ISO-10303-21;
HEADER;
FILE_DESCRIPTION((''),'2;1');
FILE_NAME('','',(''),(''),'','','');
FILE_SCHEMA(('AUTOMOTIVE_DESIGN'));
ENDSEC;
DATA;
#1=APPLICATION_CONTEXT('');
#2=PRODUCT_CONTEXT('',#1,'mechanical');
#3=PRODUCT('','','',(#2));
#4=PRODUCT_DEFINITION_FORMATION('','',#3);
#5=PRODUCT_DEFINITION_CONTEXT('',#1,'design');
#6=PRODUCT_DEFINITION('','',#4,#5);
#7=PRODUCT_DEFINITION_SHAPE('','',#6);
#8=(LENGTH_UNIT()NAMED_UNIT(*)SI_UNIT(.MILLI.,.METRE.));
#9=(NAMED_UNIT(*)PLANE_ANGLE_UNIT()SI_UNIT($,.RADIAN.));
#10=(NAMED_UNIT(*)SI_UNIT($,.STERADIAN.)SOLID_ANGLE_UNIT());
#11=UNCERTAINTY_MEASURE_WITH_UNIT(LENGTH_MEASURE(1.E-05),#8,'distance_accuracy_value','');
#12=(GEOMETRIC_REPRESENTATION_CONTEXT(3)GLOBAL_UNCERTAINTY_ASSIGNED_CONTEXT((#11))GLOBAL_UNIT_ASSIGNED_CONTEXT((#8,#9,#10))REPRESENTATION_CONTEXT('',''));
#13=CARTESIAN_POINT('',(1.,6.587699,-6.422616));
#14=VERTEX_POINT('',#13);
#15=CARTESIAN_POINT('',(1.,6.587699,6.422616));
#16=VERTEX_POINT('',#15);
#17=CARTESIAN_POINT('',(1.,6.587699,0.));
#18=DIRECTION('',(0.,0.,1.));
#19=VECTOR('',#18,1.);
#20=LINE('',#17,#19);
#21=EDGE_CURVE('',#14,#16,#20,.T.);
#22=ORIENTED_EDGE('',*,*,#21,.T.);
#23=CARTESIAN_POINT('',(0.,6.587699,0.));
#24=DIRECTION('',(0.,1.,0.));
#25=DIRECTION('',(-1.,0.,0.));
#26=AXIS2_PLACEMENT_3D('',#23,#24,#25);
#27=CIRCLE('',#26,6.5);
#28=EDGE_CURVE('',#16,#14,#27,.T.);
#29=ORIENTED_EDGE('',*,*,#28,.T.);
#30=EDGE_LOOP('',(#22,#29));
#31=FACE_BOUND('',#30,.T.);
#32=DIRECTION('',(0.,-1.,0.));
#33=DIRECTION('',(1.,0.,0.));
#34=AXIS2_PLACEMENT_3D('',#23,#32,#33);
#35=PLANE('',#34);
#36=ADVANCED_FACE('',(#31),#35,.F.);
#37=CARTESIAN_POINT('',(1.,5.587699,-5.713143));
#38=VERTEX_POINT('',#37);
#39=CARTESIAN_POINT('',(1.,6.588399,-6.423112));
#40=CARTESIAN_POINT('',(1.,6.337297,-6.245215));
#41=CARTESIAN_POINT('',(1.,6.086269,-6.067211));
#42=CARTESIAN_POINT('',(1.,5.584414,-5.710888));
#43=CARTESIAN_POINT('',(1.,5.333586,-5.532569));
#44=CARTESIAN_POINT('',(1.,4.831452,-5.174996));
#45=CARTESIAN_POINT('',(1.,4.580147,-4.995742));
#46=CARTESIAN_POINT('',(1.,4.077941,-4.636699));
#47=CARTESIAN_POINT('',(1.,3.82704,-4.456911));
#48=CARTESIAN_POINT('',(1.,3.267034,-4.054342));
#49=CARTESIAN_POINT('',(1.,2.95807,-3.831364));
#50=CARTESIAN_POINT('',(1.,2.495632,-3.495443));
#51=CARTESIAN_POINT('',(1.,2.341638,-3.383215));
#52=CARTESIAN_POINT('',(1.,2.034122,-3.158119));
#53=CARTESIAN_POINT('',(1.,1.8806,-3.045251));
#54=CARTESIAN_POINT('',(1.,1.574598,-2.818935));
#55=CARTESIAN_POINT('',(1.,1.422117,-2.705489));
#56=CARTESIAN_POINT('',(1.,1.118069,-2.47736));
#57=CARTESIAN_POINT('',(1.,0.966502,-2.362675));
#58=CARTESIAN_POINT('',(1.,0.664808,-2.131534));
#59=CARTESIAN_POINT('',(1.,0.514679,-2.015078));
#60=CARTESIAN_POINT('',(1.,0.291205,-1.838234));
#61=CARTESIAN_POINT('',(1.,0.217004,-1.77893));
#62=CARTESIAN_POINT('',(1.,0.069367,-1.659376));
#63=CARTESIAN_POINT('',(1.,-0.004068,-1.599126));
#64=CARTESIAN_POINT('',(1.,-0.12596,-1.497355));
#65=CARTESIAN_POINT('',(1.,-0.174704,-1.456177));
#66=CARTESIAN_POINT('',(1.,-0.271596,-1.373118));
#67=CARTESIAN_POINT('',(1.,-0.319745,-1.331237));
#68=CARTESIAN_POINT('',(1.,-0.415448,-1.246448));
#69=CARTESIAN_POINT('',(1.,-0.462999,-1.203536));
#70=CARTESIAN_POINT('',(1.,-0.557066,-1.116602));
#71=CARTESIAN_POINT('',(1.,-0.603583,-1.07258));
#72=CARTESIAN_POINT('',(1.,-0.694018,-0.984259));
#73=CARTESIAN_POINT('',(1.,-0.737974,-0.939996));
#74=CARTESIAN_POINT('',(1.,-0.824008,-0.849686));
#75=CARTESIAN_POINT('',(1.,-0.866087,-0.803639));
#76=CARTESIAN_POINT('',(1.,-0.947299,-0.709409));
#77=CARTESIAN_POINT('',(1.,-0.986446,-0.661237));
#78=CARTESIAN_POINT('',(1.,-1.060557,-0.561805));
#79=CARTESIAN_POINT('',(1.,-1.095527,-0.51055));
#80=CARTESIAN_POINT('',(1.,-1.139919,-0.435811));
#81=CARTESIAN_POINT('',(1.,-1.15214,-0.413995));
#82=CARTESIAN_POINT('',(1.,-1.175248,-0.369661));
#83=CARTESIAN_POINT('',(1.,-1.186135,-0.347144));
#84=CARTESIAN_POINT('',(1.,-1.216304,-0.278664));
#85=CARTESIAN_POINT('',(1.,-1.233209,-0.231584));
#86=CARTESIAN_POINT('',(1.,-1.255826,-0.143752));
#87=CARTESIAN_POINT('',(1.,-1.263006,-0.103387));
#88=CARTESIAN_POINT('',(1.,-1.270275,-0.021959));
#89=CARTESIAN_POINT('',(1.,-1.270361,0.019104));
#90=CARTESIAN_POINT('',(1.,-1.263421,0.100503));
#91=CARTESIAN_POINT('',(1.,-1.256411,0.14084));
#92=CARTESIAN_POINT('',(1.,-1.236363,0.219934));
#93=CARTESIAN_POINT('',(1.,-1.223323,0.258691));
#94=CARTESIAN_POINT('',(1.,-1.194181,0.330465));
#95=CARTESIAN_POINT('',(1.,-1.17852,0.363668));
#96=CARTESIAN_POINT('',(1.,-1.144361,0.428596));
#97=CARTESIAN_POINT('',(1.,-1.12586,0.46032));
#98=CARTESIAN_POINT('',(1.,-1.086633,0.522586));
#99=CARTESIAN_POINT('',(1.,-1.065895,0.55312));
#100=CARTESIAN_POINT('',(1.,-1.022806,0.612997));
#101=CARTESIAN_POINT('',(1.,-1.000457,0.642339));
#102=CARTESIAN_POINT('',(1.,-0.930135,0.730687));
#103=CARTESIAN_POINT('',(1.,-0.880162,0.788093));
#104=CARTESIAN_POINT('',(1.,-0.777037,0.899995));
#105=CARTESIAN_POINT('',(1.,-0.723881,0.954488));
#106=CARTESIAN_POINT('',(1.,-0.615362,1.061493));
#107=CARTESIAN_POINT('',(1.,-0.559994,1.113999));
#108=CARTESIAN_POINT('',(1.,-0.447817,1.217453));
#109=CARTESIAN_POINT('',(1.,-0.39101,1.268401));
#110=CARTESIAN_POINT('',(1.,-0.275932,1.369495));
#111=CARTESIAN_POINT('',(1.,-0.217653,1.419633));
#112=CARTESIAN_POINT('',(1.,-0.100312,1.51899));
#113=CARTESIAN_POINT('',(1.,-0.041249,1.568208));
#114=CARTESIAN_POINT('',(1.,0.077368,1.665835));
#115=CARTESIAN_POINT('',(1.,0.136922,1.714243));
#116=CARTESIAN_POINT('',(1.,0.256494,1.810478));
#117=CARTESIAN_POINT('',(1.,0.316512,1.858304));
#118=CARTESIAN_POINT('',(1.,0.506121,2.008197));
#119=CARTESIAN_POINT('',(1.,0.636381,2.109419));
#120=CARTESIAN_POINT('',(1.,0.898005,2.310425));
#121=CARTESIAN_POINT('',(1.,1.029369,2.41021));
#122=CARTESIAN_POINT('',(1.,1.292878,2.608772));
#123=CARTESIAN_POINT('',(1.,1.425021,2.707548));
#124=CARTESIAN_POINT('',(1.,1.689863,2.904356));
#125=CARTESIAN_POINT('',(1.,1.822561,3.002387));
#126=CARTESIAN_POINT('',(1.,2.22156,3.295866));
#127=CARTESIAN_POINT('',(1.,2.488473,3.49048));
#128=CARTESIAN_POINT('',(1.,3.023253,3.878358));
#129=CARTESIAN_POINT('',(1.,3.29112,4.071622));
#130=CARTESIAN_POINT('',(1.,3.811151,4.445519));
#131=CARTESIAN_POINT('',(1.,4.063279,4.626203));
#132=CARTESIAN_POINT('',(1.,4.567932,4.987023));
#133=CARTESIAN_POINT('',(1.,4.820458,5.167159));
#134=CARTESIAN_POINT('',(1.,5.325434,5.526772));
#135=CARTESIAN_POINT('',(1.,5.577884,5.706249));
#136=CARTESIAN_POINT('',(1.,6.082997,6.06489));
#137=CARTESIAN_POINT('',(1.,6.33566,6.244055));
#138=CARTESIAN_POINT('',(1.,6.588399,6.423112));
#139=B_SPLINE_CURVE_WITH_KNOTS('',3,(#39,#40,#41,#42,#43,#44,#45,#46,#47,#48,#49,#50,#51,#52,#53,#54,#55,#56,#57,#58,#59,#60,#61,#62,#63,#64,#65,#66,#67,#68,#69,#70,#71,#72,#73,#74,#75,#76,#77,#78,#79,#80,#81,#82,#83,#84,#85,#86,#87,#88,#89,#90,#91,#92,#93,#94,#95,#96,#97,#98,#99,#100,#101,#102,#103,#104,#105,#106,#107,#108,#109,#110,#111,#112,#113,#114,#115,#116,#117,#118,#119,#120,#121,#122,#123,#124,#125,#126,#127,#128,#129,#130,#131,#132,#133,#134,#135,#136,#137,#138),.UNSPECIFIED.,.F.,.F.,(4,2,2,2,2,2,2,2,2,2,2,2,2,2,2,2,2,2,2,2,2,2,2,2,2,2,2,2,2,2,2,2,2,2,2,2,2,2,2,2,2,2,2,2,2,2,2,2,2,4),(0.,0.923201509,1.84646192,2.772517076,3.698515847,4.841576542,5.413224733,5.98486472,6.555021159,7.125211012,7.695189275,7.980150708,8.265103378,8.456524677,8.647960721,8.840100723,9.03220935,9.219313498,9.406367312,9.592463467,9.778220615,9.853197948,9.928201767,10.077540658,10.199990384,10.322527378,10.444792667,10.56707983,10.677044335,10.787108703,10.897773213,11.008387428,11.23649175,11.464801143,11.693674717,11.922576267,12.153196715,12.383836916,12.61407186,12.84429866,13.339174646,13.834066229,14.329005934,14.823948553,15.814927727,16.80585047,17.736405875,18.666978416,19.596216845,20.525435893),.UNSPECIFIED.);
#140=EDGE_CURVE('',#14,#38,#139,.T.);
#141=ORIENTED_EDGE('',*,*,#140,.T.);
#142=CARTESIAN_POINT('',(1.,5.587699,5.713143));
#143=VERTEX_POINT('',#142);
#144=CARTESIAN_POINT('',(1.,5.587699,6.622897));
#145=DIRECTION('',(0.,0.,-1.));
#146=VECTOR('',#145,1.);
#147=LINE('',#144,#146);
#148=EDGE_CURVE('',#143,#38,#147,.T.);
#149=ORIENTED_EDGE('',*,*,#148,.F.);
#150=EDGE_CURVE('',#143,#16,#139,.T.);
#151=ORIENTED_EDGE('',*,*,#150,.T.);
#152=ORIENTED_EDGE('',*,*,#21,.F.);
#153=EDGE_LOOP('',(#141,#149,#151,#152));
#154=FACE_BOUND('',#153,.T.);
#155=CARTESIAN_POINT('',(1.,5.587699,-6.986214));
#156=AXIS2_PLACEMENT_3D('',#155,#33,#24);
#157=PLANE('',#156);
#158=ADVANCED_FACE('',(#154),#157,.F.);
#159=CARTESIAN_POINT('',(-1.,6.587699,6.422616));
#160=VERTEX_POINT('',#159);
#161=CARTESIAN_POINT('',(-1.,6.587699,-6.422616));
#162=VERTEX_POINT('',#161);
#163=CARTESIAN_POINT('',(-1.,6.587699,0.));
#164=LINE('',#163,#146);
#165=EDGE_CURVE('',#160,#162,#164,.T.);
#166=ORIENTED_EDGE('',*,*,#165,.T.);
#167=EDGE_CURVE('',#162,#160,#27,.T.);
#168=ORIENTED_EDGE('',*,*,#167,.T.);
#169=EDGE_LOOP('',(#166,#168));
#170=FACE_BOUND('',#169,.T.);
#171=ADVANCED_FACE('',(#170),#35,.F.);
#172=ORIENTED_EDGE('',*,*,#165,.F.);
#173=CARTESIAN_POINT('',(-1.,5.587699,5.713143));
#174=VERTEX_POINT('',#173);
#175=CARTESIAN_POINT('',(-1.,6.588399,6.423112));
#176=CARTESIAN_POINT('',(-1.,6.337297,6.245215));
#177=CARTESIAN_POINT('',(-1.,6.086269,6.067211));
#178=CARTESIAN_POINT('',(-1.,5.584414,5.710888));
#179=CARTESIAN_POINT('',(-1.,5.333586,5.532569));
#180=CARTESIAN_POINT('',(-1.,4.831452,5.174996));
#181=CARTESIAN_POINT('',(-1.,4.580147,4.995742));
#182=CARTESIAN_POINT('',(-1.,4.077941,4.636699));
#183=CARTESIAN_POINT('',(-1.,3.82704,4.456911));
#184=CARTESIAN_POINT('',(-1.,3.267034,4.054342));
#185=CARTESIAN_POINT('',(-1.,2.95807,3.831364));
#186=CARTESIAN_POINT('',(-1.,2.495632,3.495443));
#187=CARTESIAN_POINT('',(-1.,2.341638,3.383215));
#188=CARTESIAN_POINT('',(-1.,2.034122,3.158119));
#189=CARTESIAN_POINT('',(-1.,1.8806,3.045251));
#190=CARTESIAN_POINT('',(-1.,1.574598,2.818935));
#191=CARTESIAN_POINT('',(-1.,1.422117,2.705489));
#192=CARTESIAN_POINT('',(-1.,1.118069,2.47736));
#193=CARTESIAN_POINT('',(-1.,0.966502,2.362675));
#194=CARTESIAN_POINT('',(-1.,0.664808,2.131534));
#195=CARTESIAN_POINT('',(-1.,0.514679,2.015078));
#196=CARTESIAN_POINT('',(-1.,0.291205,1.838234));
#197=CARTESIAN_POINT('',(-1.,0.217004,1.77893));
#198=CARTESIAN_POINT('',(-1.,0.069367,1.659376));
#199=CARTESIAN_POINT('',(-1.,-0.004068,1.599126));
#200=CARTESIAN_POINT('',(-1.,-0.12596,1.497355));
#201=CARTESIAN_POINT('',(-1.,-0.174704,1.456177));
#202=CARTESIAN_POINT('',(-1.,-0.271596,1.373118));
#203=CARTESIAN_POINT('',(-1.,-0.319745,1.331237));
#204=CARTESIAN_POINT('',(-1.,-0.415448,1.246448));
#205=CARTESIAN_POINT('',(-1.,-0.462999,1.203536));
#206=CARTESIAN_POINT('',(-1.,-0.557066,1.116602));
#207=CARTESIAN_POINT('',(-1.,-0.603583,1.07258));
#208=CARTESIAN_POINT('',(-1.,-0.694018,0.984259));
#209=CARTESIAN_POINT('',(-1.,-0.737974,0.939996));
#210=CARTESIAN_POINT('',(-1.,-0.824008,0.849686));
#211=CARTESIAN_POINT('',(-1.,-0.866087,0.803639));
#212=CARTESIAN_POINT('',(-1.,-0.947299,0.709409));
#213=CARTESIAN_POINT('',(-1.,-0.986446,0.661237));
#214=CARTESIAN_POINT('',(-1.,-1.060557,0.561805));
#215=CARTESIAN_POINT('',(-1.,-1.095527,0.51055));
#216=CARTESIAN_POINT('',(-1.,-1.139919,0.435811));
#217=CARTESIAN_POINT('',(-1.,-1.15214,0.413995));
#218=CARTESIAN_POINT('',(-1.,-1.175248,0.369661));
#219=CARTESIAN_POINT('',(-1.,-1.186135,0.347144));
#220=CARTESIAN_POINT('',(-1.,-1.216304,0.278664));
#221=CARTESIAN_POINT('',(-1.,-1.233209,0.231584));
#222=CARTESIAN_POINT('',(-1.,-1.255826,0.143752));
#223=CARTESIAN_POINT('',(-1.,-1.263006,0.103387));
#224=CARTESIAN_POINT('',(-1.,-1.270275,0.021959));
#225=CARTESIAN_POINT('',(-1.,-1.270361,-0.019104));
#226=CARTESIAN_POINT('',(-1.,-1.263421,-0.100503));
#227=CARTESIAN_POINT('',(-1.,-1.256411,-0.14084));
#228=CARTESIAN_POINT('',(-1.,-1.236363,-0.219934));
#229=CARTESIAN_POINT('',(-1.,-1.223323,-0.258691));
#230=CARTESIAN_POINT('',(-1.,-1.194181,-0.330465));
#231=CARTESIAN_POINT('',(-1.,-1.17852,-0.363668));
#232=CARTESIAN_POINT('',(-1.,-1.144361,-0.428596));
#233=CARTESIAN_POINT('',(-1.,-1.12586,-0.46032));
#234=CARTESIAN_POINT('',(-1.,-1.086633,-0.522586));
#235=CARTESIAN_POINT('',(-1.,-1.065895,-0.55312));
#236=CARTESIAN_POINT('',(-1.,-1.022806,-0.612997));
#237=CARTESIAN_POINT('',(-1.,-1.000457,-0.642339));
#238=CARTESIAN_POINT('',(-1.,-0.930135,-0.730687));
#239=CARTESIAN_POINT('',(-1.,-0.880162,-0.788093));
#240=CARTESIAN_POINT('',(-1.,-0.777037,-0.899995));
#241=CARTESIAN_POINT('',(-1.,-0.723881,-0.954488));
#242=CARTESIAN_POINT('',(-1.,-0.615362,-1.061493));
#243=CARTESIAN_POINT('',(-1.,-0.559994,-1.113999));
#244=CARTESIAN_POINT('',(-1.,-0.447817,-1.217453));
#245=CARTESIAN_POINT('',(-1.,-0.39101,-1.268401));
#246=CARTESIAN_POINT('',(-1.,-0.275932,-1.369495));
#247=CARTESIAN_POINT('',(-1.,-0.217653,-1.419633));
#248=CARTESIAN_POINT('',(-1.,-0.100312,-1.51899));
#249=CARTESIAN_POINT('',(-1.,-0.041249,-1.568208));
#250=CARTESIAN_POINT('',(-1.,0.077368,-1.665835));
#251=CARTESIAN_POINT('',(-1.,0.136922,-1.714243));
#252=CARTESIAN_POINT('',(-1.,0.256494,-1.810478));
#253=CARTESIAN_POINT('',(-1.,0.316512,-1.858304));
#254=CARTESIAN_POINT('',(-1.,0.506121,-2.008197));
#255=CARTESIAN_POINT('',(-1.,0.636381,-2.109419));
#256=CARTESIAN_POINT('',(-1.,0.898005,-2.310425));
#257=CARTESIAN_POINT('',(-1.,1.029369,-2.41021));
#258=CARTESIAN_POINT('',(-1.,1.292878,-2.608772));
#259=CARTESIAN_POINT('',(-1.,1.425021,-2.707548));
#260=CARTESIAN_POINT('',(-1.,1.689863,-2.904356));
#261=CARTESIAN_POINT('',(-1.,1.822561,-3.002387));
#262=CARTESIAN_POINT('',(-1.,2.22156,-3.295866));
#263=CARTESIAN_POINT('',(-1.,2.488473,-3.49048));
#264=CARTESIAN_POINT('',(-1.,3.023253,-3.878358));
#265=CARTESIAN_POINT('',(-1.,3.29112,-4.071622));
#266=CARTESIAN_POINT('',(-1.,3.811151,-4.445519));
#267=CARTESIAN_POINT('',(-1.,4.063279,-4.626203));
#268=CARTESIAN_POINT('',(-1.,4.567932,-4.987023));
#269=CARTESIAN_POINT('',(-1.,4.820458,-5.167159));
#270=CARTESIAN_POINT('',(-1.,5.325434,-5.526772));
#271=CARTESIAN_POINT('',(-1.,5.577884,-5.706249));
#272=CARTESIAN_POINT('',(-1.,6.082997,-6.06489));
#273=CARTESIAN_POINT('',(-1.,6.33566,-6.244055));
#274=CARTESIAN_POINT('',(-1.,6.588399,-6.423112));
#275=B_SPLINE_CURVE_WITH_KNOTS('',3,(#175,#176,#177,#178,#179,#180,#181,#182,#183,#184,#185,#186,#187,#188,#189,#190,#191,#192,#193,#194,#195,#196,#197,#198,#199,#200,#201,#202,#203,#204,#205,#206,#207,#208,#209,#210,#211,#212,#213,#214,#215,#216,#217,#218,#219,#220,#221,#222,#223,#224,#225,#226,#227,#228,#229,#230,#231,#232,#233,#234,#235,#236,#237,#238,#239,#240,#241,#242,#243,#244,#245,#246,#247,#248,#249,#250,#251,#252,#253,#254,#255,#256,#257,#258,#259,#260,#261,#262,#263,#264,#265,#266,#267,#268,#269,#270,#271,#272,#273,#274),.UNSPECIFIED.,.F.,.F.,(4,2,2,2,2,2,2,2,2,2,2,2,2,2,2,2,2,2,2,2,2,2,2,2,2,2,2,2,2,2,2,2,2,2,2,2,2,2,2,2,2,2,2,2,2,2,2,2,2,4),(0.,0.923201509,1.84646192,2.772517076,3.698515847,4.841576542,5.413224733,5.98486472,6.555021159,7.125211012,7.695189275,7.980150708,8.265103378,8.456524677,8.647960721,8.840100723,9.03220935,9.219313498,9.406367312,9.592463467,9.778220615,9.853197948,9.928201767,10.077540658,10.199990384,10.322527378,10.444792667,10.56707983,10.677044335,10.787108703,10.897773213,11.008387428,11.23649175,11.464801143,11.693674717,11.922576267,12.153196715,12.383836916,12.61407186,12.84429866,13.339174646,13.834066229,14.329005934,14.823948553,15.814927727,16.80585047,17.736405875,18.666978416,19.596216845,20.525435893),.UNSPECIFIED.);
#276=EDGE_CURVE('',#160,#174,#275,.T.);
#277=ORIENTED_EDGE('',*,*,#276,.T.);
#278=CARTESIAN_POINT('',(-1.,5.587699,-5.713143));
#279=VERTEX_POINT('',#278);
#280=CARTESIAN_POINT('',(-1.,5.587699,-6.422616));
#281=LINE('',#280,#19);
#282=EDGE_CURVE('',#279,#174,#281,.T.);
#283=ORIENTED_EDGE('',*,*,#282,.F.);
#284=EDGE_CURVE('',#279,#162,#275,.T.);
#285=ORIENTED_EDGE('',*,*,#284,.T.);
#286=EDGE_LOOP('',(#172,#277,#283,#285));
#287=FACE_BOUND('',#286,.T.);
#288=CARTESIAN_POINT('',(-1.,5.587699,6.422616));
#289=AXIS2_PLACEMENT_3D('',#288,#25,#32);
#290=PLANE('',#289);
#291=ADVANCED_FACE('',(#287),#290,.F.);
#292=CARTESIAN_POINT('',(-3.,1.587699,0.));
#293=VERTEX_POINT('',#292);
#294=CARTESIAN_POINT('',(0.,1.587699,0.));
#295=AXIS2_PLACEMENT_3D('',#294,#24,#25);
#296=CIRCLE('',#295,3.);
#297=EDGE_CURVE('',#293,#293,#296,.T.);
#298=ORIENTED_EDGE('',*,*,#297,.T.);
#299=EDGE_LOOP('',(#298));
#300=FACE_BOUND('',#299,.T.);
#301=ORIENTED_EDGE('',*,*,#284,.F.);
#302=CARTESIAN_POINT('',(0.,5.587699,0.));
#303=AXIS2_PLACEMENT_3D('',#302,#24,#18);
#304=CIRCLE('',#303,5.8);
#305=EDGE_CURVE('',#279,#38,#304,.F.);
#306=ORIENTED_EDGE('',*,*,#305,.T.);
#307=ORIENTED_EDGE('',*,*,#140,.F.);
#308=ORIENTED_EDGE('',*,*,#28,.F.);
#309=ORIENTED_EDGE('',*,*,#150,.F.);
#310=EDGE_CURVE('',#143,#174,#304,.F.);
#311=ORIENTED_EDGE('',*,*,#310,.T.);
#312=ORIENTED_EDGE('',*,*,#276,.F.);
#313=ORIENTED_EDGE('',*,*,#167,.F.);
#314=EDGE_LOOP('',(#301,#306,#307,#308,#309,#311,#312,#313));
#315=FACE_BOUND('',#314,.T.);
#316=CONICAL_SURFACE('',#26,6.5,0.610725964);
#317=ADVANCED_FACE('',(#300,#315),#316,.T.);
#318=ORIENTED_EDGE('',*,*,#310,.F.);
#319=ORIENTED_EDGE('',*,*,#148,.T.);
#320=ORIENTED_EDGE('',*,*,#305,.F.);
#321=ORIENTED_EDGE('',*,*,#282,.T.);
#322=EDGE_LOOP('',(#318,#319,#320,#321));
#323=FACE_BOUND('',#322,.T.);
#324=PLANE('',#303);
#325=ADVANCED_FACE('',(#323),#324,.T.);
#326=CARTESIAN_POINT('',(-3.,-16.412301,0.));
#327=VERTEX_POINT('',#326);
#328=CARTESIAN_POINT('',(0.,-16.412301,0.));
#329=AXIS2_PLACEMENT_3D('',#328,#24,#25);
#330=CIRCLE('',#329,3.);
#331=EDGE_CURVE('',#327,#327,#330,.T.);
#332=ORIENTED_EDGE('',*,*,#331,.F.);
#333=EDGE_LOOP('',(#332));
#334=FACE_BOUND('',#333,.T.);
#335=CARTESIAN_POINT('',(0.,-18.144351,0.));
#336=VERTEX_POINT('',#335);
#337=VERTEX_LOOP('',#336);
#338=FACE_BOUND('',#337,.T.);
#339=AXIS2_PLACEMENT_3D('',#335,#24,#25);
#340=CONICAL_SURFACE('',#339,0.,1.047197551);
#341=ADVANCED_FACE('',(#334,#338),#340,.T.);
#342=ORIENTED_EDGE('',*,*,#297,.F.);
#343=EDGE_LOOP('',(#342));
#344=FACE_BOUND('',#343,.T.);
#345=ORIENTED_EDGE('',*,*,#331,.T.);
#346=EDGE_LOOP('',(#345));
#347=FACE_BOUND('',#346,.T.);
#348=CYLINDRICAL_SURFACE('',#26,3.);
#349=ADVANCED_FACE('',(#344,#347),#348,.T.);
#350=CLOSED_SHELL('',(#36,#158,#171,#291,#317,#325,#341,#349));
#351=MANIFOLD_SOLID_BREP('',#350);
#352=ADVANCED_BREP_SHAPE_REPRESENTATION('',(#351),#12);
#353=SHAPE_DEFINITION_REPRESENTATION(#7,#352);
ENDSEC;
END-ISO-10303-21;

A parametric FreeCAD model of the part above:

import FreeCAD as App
import Part
import Sketcher

V = App.Vector
Q = App.Units.Quantity


def add_polygon(sketch, points):
    """Adds a closed chain of lines whose ends are joined by coincident constraints."""
    first, n = sketch.GeometryCount, len(points)
    for a, b in zip(points, points[1:] + points[:1]):
        sketch.addGeometry(Part.LineSegment(App.Vector(*a, 0), App.Vector(*b, 0)), False)
    for i in range(n):
        sketch.addConstraint(Sketcher.Constraint("Coincident", first + i, 2, first + (i + 1) % n, 1))

doc = App.newDocument("Part")
body = doc.addObject("PartDesign::Body", "Body")

# Sketch on XY plane
sketch1 = body.newObject("Sketcher::SketchObject", "Sketch")
sketch1.AttachmentSupport = (doc.getObject("XY_Plane"), [""])
sketch1.MapMode = "FlatFace"
add_polygon(sketch1, [(0, -18.1), (3, -16.4), (3, 1.6), (6.5, 6.6), (0, 6.6)])  # lines 0-4
sketch1.addConstraint([
    Sketcher.Constraint("Vertical", 1),
    Sketcher.Constraint("Horizontal", 3),
    Sketcher.Constraint("Vertical", 4),
    Sketcher.Constraint("PointOnObject", 3, 2, -2),
    Sketcher.Constraint("DistanceY", 1, 1, 1, 2, 18.0),
    Sketcher.Constraint("Angle", 0, Q("30 deg")),
    Sketcher.Constraint("DistanceX", 3, 2, 3, 1, 6.5),
    Sketcher.Constraint("DistanceX", -1, 1, 0, 2, 3.0),
    Sketcher.Constraint("DistanceY", 1, 2, 2, 2, 5.0),
    Sketcher.Constraint("DistanceY", 0, 2, -1, 1, 16.412301),
])
revolution = body.newObject("PartDesign::Revolution", "Revolution")
revolution.Profile = sketch1
revolution.ReferenceAxis = (sketch1, ["V_Axis"])
revolution.Angle = 360

# Sketch on XZ plane
sketch2 = body.newObject("Sketcher::SketchObject", "Sketch001")
sketch2.AttachmentSupport = (doc.getObject("XZ_Plane"), [""])
sketch2.MapMode = "FlatFace"
sketch2.AttachmentOffset = App.Placement(V(0, 0, -6.587699), App.Rotation())
add_polygon(sketch2, [(-1, 6.6), (1, 6.6), (1, -7), (-1, -7)])  # lines 0-3
sketch2.addConstraint([
    Sketcher.Constraint("Horizontal", 0),
    Sketcher.Constraint("Vertical", 1),
    Sketcher.Constraint("Horizontal", 2),
    Sketcher.Constraint("Vertical", 3),
    Sketcher.Constraint("DistanceX", 0, 1, 0, 2, 2.0),
    Sketcher.Constraint("DistanceX", -1, 1, 0, 2, 1.0),
    Sketcher.Constraint("DistanceY", 1, 2, 1, 1, 13.609111),
    Sketcher.Constraint("DistanceY", -1, 1, 0, 2, 6.622897),
])
pocket1 = body.newObject("PartDesign::Pocket", "Pocket")
pocket1.Profile = sketch2
pocket1.Length = 1
pocket1.Reversed = True

doc.recompute()
